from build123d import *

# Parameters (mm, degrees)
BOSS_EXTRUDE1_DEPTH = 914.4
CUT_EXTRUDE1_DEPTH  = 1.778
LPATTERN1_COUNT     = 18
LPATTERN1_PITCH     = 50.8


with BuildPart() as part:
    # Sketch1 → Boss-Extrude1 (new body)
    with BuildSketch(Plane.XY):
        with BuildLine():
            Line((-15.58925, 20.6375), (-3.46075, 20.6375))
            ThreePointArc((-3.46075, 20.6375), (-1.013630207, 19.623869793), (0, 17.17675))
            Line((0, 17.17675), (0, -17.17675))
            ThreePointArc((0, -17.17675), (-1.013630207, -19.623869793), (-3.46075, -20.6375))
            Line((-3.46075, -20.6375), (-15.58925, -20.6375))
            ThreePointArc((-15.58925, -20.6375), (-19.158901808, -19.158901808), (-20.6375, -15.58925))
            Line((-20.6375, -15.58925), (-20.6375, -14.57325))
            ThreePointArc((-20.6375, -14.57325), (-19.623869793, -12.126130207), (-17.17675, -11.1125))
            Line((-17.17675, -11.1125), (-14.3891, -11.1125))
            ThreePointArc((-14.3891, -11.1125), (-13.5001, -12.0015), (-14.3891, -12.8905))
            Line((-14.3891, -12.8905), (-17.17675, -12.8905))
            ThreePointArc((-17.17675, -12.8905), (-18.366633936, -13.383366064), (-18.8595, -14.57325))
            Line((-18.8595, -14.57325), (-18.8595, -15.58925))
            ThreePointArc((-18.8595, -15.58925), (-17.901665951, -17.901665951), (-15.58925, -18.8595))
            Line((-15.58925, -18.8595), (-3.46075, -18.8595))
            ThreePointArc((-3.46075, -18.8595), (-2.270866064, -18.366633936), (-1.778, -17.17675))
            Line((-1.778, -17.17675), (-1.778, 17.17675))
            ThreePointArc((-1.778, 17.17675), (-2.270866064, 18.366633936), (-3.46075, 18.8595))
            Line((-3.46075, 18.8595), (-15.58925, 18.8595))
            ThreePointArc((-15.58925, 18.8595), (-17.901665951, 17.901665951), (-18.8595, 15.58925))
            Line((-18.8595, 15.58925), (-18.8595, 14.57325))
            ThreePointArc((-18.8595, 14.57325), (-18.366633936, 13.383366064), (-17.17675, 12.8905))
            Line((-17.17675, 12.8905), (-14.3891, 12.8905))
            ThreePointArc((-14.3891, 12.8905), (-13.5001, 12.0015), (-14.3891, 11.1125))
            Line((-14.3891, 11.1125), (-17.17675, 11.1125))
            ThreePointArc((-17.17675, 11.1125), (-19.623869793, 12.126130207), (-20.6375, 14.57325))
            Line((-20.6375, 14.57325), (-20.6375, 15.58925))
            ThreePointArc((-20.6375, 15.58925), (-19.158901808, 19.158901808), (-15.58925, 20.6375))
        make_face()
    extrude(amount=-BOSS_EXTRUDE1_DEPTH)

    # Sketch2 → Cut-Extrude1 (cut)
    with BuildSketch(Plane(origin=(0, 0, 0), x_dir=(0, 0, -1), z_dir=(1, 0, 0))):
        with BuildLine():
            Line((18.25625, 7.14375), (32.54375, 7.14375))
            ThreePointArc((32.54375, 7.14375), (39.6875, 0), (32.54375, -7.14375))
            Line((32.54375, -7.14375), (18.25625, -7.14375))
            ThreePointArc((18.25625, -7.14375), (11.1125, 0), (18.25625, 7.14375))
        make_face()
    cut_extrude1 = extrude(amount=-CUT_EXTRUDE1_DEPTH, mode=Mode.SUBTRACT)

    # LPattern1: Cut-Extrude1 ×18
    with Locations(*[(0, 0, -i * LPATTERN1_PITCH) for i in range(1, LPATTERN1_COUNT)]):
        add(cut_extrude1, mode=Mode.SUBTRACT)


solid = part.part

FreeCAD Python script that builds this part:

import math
import FreeCAD as App
import Part
import Sketcher

V = App.Vector
Q = App.Units.Quantity

doc = App.newDocument("Part")
params = doc.addObject("Spreadsheet::Sheet", "Params")
for row, (alias, value) in enumerate([
    ("sketch1_radius", "0.035 in"),
    ("sketch1_height", "0.04 in"),
    ("pad1_length", "36 in"),
    ("sketch2_radius", "0.28125 in"),
    ("sketch2_height", "0.5625 in"),
    ("pocket1_length", "0.07 in"),
    ("linearpattern_pitch", "2 in"),
], start=1):
    params.set(f"A{row}", alias)
    params.set(f"B{row}", "=" + value)
    params.setAlias(f"B{row}", alias)

body = doc.addObject("PartDesign::Body", "Body")

# Sketch on XY plane
sketch1 = body.newObject("Sketcher::SketchObject", "Sketch")
sketch1.AttachmentSupport = (doc.getObject("XY_Plane"), [""])
sketch1.MapMode = "FlatFace"
sketch1.addGeometry([
    Part.LineSegment(V(-3.5, 20.6, 0), V(-15.6, 20.6, 0)),  # 0
    Part.ArcOfCircle(Part.Circle(V(-15.6, 15.6, 0), V(0, 0, 1), 5), math.radians(90), math.radians(180)),  # 1
    Part.LineSegment(V(-20.6, 15.6, 0), V(-20.6, 14.6, 0)),  # 2
    Part.ArcOfCircle(Part.Circle(V(-17.2, 14.6, 0), V(0, 0, 1), 3.5), math.radians(180), math.radians(270)),  # 3
    Part.LineSegment(V(-17.2, 11.1, 0), V(-14.4, 11.1, 0)),  # 4
    Part.ArcOfCircle(Part.Circle(V(-14.4, 12, 0), V(0, 0, 1), 0.9), math.radians(-90), math.radians(90)),  # 5
    Part.LineSegment(V(-14.4, 12.9, 0), V(-17.2, 12.9, 0)),  # 6
    Part.ArcOfCircle(Part.Circle(V(-17.2, 14.6, 0), V(0, 0, 1), 1.7), math.radians(180), math.radians(270)),  # 7
    Part.LineSegment(V(-18.9, 14.6, 0), V(-18.9, 15.6, 0)),  # 8
    Part.ArcOfCircle(Part.Circle(V(-15.6, 15.6, 0), V(0, 0, 1), 3.3), math.radians(90), math.radians(180)),  # 9
    Part.LineSegment(V(-15.6, 18.9, 0), V(-3.5, 18.9, 0)),  # 10
    Part.ArcOfCircle(Part.Circle(V(-3.5, 17.2, 0), V(0, 0, 1), 1.7), math.radians(0), math.radians(90)),  # 11
    Part.LineSegment(V(-1.8, 17.2, 0), V(-1.8, -17.2, 0)),  # 12
    Part.ArcOfCircle(Part.Circle(V(-3.5, -17.2, 0), V(0, 0, 1), 1.7), math.radians(-90), math.radians(0)),  # 13
    Part.LineSegment(V(-3.5, -18.9, 0), V(-15.6, -18.9, 0)),  # 14
    Part.ArcOfCircle(Part.Circle(V(-15.6, -15.6, 0), V(0, 0, 1), 3.3), math.radians(-180), math.radians(-90)),  # 15
    Part.LineSegment(V(-18.9, -15.6, 0), V(-18.9, -14.6, 0)),  # 16
    Part.ArcOfCircle(Part.Circle(V(-17.2, -14.6, 0), V(0, 0, 1), 1.7), math.radians(90), math.radians(180)),  # 17
    Part.LineSegment(V(-17.2, -12.9, 0), V(-14.4, -12.9, 0)),  # 18
    Part.ArcOfCircle(Part.Circle(V(-14.4, -12, 0), V(0, 0, 1), 0.9), math.radians(-90), math.radians(90)),  # 19
    Part.LineSegment(V(-14.4, -11.1, 0), V(-17.2, -11.1, 0)),  # 20
    Part.ArcOfCircle(Part.Circle(V(-17.2, -14.6, 0), V(0, 0, 1), 3.5), math.radians(90), math.radians(180)),  # 21
    Part.LineSegment(V(-20.6, -14.6, 0), V(-20.6, -15.6, 0)),  # 22
    Part.ArcOfCircle(Part.Circle(V(-15.6, -15.6, 0), V(0, 0, 1), 5), math.radians(180), math.radians(270)),  # 23
    Part.LineSegment(V(-15.6, -20.6, 0), V(-3.5, -20.6, 0)),  # 24
    Part.ArcOfCircle(Part.Circle(V(-3.5, -17.2, 0), V(0, 0, 1), 3.5), math.radians(-90), math.radians(0)),  # 25
    Part.LineSegment(V(0, -17.2, 0), V(0, 17.2, 0)),  # 26
    Part.ArcOfCircle(Part.Circle(V(-3.5, 17.2, 0), V(0, 0, 1), 3.5), math.radians(0), math.radians(90)),  # 27
], False)
sketch1.addConstraint([
    Sketcher.Constraint("Tangent", 0, 2, 1, 1),
    Sketcher.Constraint("Tangent", 1, 2, 2, 1),
    Sketcher.Constraint("Tangent", 2, 2, 3, 1),
    Sketcher.Constraint("Tangent", 3, 2, 4, 1),
    Sketcher.Constraint("Tangent", 4, 2, 5, 1),
    Sketcher.Constraint("Tangent", 5, 2, 6, 1),
    Sketcher.Constraint("Tangent", 6, 2, 7, 2),
    Sketcher.Constraint("Tangent", 7, 1, 8, 1),
    Sketcher.Constraint("Tangent", 8, 2, 9, 2),
    Sketcher.Constraint("Tangent", 9, 1, 10, 1),
    Sketcher.Constraint("Tangent", 10, 2, 11, 2),
    Sketcher.Constraint("Tangent", 11, 1, 12, 1),
    Sketcher.Constraint("Tangent", 12, 2, 13, 2),
    Sketcher.Constraint("Tangent", 13, 1, 14, 1),
    Sketcher.Constraint("Tangent", 14, 2, 15, 2),
    Sketcher.Constraint("Tangent", 15, 1, 16, 1),
    Sketcher.Constraint("Tangent", 16, 2, 17, 2),
    Sketcher.Constraint("Tangent", 17, 1, 18, 1),
    Sketcher.Constraint("Tangent", 18, 2, 19, 1),
    Sketcher.Constraint("Tangent", 19, 2, 20, 1),
    Sketcher.Constraint("Tangent", 20, 2, 21, 1),
    Sketcher.Constraint("Tangent", 21, 2, 22, 1),
    Sketcher.Constraint("Tangent", 22, 2, 23, 1),
    Sketcher.Constraint("Tangent", 23, 2, 24, 1),
    Sketcher.Constraint("Tangent", 24, 2, 25, 1),
    Sketcher.Constraint("Tangent", 25, 2, 26, 1),
    Sketcher.Constraint("Tangent", 26, 2, 27, 1),
    Sketcher.Constraint("Tangent", 27, 2, 0, 1),
    Sketcher.Constraint("Horizontal", 0),
    Sketcher.Constraint("Vertical", 2),
    Sketcher.Constraint("Horizontal", 4),
    Sketcher.Constraint("Horizontal", 6),
    Sketcher.Constraint("Vertical", 8),
    Sketcher.Constraint("Horizontal", 10),
    Sketcher.Constraint("Vertical", 12),
    Sketcher.Constraint("Horizontal", 14),
    Sketcher.Constraint("Vertical", 16),
    Sketcher.Constraint("Horizontal", 18),
    Sketcher.Constraint("Horizontal", 20),
    Sketcher.Constraint("Vertical", 22),
    Sketcher.Constraint("Horizontal", 24),
    Sketcher.Constraint("Vertical", 26),
    Sketcher.Constraint("Coincident", 7, 3, 3, 3),
    Sketcher.Constraint("Coincident", 9, 3, 1, 3),
    Sketcher.Constraint("Coincident", 21, 3, 17, 3),
    Sketcher.Constraint("Coincident", 23, 3, 15, 3),
    Sketcher.Constraint("Coincident", 25, 3, 13, 3),
    Sketcher.Constraint("Coincident", 27, 3, 11, 3),
    Sketcher.Constraint("Equal", 7, 11),
    Sketcher.Constraint("Equal", 11, 13),
    Sketcher.Constraint("Equal", 9, 15),
    Sketcher.Constraint("Equal", 13, 17),
    Sketcher.Constraint("Symmetric", 25, 2, 26, 2, -1, 1),
    Sketcher.Constraint("Symmetric", 3, 3, 17, 3, -1),
    Sketcher.Constraint("Vertical", 5, 3, 19, 3),
    Sketcher.Constraint("Radius", 5, Q("0.035 in")),
    Sketcher.Constraint("DistanceY", 2, 2, 2, 1, Q("0.04 in")),
    Sketcher.Constraint("DistanceX", 3, 3, 11, 3, Q("0.54 in")),
    Sketcher.Constraint("DistanceY", 13, 3, 3, 3, Q("1.25 in")),
    Sketcher.Constraint("DistanceY", 5, 3, 0, 2, Q("0.34 in")),
    Sketcher.Constraint("DistanceX", 0, 2, 0, 1, Q("0.4775 in")),
    Sketcher.Constraint("DistanceX", 5, 3, -1, 1, Q("0.5665 in")),
])
sketch1.setExpression("Constraints[55]", "Params.sketch1_radius")
sketch1.setExpression("Constraints[56]", "Params.sketch1_height")
pad1 = body.newObject("PartDesign::Pad", "Pad")
pad1.Profile = sketch1
pad1.setExpression("Length", "Params.pad1_length")
pad1.Reversed = True

# Sketch on YZ plane
sketch2 = body.newObject("Sketcher::SketchObject", "Sketch001")
sketch2.AttachmentSupport = (doc.getObject("YZ_Plane"), [""])
sketch2.MapMode = "FlatFace"
sketch2.addGeometry([
    Part.LineSegment(V(7, -33, 0), V(7, -18, 0)),
    Part.ArcOfCircle(Part.Circle(V(0, -18, 0), V(0, 0, 1), 7), math.radians(0), math.radians(180)),
    Part.LineSegment(V(-7, -18, 0), V(-7, -33, 0)),
    Part.ArcOfCircle(Part.Circle(V(0, -33, 0), V(0, 0, 1), 7), math.radians(180), math.radians(360)),
], False)
sketch2.addConstraint([
    Sketcher.Constraint("Tangent", 0, 2, 1, 1),
    Sketcher.Constraint("Tangent", 1, 2, 2, 1),
    Sketcher.Constraint("Tangent", 2, 2, 3, 1),
    Sketcher.Constraint("Tangent", 3, 2, 0, 1),
    Sketcher.Constraint("Vertical", 0),
    Sketcher.Constraint("Vertical", 2),
    Sketcher.Constraint("PointOnObject", 1, 3, -2),
    Sketcher.Constraint("Radius", 1, Q("0.28125 in")),
    Sketcher.Constraint("DistanceY", 0, 1, 0, 2, Q("0.5625 in")),
    Sketcher.Constraint("DistanceY", 1, 3, -1, 1, Q("0.71875 in")),
])
sketch2.setExpression("Constraints[7]", "Params.sketch2_radius")
sketch2.setExpression("Constraints[8]", "Params.sketch2_height")
pocket1 = body.newObject("PartDesign::Pocket", "Pocket")
pocket1.Profile = sketch2
pocket1.setExpression("Length", "Params.pocket1_length")
doc.recompute()

linearpattern = body.newObject("PartDesign::LinearPattern", "LinearPattern")
linearpattern.Originals = [pocket1]
linearpattern.Direction = (doc.getObject("Z_Axis"), [""])
linearpattern.Mode = "offset"
linearpattern.setExpression("Offset", "Params.linearpattern_pitch")
linearpattern.Occurrences = 18
linearpattern.Reversed = True
body.Tip = linearpattern

doc.recompute()
